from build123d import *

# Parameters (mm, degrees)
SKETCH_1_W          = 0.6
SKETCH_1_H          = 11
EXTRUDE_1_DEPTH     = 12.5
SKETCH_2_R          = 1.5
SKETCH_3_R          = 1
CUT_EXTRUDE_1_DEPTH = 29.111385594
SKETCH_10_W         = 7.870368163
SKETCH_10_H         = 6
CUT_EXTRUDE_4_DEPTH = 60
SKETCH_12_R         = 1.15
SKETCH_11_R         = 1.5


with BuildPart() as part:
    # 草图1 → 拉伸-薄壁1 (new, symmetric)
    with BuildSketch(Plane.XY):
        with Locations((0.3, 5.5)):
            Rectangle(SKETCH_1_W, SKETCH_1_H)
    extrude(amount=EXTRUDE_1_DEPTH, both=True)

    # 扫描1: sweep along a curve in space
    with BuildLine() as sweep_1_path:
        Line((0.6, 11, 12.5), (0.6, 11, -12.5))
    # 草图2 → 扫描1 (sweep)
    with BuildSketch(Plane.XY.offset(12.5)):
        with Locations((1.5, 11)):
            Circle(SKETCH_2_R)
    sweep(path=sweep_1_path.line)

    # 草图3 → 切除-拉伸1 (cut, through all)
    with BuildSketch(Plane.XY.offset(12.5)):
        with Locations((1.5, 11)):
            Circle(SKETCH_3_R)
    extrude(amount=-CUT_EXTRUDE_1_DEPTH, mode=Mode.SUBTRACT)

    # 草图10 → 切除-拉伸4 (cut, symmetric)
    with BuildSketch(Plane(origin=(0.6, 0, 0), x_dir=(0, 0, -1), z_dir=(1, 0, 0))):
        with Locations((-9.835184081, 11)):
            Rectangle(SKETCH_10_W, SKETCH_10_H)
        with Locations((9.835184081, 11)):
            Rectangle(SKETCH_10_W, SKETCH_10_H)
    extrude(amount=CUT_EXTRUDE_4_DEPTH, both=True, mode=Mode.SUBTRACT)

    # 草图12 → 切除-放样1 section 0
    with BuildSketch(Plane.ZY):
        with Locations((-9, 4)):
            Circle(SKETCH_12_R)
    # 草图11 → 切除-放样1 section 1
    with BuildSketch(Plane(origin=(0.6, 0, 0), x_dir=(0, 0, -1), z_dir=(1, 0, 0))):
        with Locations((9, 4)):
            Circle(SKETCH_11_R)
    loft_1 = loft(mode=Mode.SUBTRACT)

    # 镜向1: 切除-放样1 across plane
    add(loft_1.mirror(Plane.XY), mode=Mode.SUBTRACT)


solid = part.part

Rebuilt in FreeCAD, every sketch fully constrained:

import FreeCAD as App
import Part
import Sketcher


def add_polygon(sketch, points):
    """Adds a closed chain of lines whose ends are joined by coincident constraints."""
    first, n = sketch.GeometryCount, len(points)
    for a, b in zip(points, points[1:] + points[:1]):
        sketch.addGeometry(Part.LineSegment(App.Vector(*a, 0), App.Vector(*b, 0)), False)
    for i in range(n):
        sketch.addConstraint(Sketcher.Constraint("Coincident", first + i, 2, first + (i + 1) % n, 1))

doc = App.newDocument("Part")
params = doc.addObject("Spreadsheet::Sheet", "Params")
for row, (alias, value) in enumerate([
    ("sketch1_height", "11 mm"),
    ("sketch1_width", "0.6 mm"),
    ("pad1_length", "25 mm"),
    ("sketch2_diameter", "3 mm"),
    ("sketch3_height", "25 mm"),
    ("sketch4_diameter", "2 mm"),
    ("sketch5_width", "6 mm"),
    ("pocket2_length", "120 mm"),
    ("sketch6_diameter", "2.3 mm"),
    ("sketch7_diameter", "3 mm"),
], start=1):
    params.set(f"A{row}", alias)
    params.set(f"B{row}", "=" + value)
    params.setAlias(f"B{row}", alias)

body = doc.addObject("PartDesign::Body", "Body")

# Sketch on XY plane
sketch1 = doc.addObject("Sketcher::SketchObject", "Sketch")
body.addObject(sketch1)
sketch1.AttachmentSupport = (doc.XY_Plane, [""])
sketch1.MapMode = "FlatFace"
add_polygon(sketch1, [(0, 11), (0, 0), (0.6, 0), (0.6, 11)])  # lines 0-3
sketch1.addConstraint(Sketcher.Constraint("Vertical", 0))
sketch1.addConstraint(Sketcher.Constraint("Horizontal", 1))
sketch1.addConstraint(Sketcher.Constraint("Vertical", 2))
sketch1.addConstraint(Sketcher.Constraint("Horizontal", 3))
sketch1.addConstraint(Sketcher.Constraint("Coincident", 0, 2, -1, 1))
sketch1.addConstraint(Sketcher.Constraint("DistanceY", 0, 2, 0, 1, 11.0))
sketch1.addConstraint(Sketcher.Constraint("DistanceX", 1, 1, 1, 2, 0.6))
sketch1.setExpression("Constraints[9]", "Params.sketch1_height")
sketch1.setExpression("Constraints[10]", "Params.sketch1_width")
pad1 = doc.addObject("PartDesign::Pad", "Pad")
body.addObject(pad1)
pad1.Profile = sketch1
pad1.setExpression("Length", "Params.pad1_length")
pad1.Midplane = True

# Sketch on XY plane
sketch2 = doc.addObject("Sketcher::SketchObject", "Sketch001")
body.addObject(sketch2)
sketch2.AttachmentSupport = (doc.XY_Plane, [""])
sketch2.MapMode = "FlatFace"
sketch2.AttachmentOffset = App.Placement(App.Vector(0, 0, 12.5), App.Rotation())
sketch2.addGeometry(Part.Circle(App.Vector(1.5, 11, 0), App.Vector(0, 0, 1), 1.5), False)
sketch2.addConstraint(Sketcher.Constraint("Diameter", 0, 3.0))
sketch2.addConstraint(Sketcher.Constraint("DistanceY", -1, 1, 0, 3, 11.0))
sketch2.addConstraint(Sketcher.Constraint("DistanceX", -1, 1, 0, 3, 1.5))
sketch2.setExpression("Constraints[0]", "Params.sketch2_diameter")

# Sketch on XZ plane
sketch3 = doc.addObject("Sketcher::SketchObject", "Sketch002")
body.addObject(sketch3)
sketch3.AttachmentSupport = (doc.XZ_Plane, [""])
sketch3.MapMode = "FlatFace"
sketch3.AttachmentOffset = App.Placement(App.Vector(0, 0, -11), App.Rotation())
sketch3.addGeometry(Part.LineSegment(App.Vector(1, 12, 0), App.Vector(1, -12, 0)), False)
sketch3.addConstraint(Sketcher.Constraint("Vertical", 0))
sketch3.addConstraint(Sketcher.Constraint("DistanceY", 0, 2, 0, 1, 25.0))
sketch3.addConstraint(Sketcher.Constraint("DistanceX", -1, 1, 0, 1, 0.6))
sketch3.addConstraint(Sketcher.Constraint("DistanceY", -1, 1, 0, 1, 12.5))
sketch3.setExpression("Constraints[1]", "Params.sketch3_height")
doc.recompute()

additivepipe = doc.addObject("PartDesign::AdditivePipe", "AdditivePipe")
body.addObject(additivepipe)
additivepipe.Profile = sketch2
additivepipe.Spine = (sketch3, ["Edge1"])

# Sketch on XY plane
sketch4 = doc.addObject("Sketcher::SketchObject", "Sketch003")
body.addObject(sketch4)
sketch4.AttachmentSupport = (doc.XY_Plane, [""])
sketch4.MapMode = "FlatFace"
sketch4.AttachmentOffset = App.Placement(App.Vector(0, 0, 12.5), App.Rotation())
sketch4.addGeometry(Part.Circle(App.Vector(1.5, 11, 0), App.Vector(0, 0, 1), 1), False)
sketch4.addConstraint(Sketcher.Constraint("Diameter", 0, 2.0))
sketch4.addConstraint(Sketcher.Constraint("DistanceY", -1, 1, 0, 3, 11.0))
sketch4.addConstraint(Sketcher.Constraint("DistanceX", -1, 1, 0, 3, 1.5))
sketch4.setExpression("Constraints[0]", "Params.sketch4_diameter")
pocket1 = doc.addObject("PartDesign::Pocket", "Pocket")
body.addObject(pocket1)
pocket1.Profile = sketch4
pocket1.Type = "ThroughAll"

# Sketch on YZ plane
sketch5 = doc.addObject("Sketcher::SketchObject", "Sketch004")
body.addObject(sketch5)
sketch5.AttachmentSupport = (doc.YZ_Plane, [""])
sketch5.MapMode = "FlatFace"
sketch5.AttachmentOffset = App.Placement(App.Vector(0, 0, 0.6), App.Rotation())
add_polygon(sketch5, [(14, 14), (8, 14), (8, 6), (14, 6)])  # lines 0-3
add_polygon(sketch5, [(14, -6), (8, -6), (8, -14), (14, -14)])  # lines 4-7
sketch5.addConstraint(Sketcher.Constraint("Horizontal", 0))
sketch5.addConstraint(Sketcher.Constraint("Vertical", 1))
sketch5.addConstraint(Sketcher.Constraint("Horizontal", 2))
sketch5.addConstraint(Sketcher.Constraint("Vertical", 3))
sketch5.addConstraint(Sketcher.Constraint("Horizontal", 4))
sketch5.addConstraint(Sketcher.Constraint("Vertical", 5))
sketch5.addConstraint(Sketcher.Constraint("Horizontal", 6))
sketch5.addConstraint(Sketcher.Constraint("Vertical", 7))
sketch5.addConstraint(Sketcher.Constraint("Symmetric", 1, 2, 4, 2, -1))
sketch5.addConstraint(Sketcher.Constraint("Symmetric", 3, 2, 6, 2, -1))
sketch5.addConstraint(Sketcher.Constraint("DistanceX", 0, 2, 0, 1, 6.0))
sketch5.addConstraint(Sketcher.Constraint("DistanceX", -1, 1, 0, 2, 8.0))
sketch5.addConstraint(Sketcher.Constraint("DistanceY", -1, 1, 1, 2, 5.9))
sketch5.addConstraint(Sketcher.Constraint("DistanceY", 1, 2, 1, 1, 7.870368))
sketch5.setExpression("Constraints[18]", "Params.sketch5_width")
pocket2 = doc.addObject("PartDesign::Pocket", "Pocket001")
body.addObject(pocket2)
pocket2.Profile = sketch5
pocket2.setExpression("Length", "Params.pocket2_length")
pocket2.Midplane = True

# Sketch on YZ plane
sketch6 = doc.addObject("Sketcher::SketchObject", "Sketch005")
body.addObject(sketch6)
sketch6.AttachmentSupport = (doc.YZ_Plane, [""])
sketch6.MapMode = "FlatFace"
sketch6.addGeometry(Part.Circle(App.Vector(4, -9, 0), App.Vector(0, 0, 1), 1.1), False)
sketch6.addConstraint(Sketcher.Constraint("Diameter", 0, 2.3))
sketch6.addConstraint(Sketcher.Constraint("DistanceX", -1, 1, 0, 3, 4.0))
sketch6.addConstraint(Sketcher.Constraint("DistanceY", 0, 3, -1, 1, 9.0))
sketch6.setExpression("Constraints[0]", "Params.sketch6_diameter")

# Sketch on YZ plane
sketch7 = doc.addObject("Sketcher::SketchObject", "Sketch006")
body.addObject(sketch7)
sketch7.AttachmentSupport = (doc.YZ_Plane, [""])
sketch7.MapMode = "FlatFace"
sketch7.AttachmentOffset = App.Placement(App.Vector(0, 0, 0.6), App.Rotation())
sketch7.addGeometry(Part.Circle(App.Vector(4, -9, 0), App.Vector(0, 0, 1), 1.5), False)
sketch7.addConstraint(Sketcher.Constraint("Diameter", 0, 3.0))
sketch7.addConstraint(Sketcher.Constraint("DistanceX", -1, 1, 0, 3, 4.0))
sketch7.addConstraint(Sketcher.Constraint("DistanceY", 0, 3, -1, 1, 9.0))
sketch7.setExpression("Constraints[0]", "Params.sketch7_diameter")

subtractiveloft = doc.addObject("PartDesign::SubtractiveLoft", "SubtractiveLoft")
body.addObject(subtractiveloft)
subtractiveloft.Profile = sketch6
subtractiveloft.Sections = [sketch7]
doc.recompute()

mirrored = doc.addObject("PartDesign::Mirrored", "Mirrored")
body.addObject(mirrored)
mirrored.Originals = [subtractiveloft]
mirrored.MirrorPlane = (doc.XY_Plane, [""])
body.Tip = mirrored

doc.recompute()
